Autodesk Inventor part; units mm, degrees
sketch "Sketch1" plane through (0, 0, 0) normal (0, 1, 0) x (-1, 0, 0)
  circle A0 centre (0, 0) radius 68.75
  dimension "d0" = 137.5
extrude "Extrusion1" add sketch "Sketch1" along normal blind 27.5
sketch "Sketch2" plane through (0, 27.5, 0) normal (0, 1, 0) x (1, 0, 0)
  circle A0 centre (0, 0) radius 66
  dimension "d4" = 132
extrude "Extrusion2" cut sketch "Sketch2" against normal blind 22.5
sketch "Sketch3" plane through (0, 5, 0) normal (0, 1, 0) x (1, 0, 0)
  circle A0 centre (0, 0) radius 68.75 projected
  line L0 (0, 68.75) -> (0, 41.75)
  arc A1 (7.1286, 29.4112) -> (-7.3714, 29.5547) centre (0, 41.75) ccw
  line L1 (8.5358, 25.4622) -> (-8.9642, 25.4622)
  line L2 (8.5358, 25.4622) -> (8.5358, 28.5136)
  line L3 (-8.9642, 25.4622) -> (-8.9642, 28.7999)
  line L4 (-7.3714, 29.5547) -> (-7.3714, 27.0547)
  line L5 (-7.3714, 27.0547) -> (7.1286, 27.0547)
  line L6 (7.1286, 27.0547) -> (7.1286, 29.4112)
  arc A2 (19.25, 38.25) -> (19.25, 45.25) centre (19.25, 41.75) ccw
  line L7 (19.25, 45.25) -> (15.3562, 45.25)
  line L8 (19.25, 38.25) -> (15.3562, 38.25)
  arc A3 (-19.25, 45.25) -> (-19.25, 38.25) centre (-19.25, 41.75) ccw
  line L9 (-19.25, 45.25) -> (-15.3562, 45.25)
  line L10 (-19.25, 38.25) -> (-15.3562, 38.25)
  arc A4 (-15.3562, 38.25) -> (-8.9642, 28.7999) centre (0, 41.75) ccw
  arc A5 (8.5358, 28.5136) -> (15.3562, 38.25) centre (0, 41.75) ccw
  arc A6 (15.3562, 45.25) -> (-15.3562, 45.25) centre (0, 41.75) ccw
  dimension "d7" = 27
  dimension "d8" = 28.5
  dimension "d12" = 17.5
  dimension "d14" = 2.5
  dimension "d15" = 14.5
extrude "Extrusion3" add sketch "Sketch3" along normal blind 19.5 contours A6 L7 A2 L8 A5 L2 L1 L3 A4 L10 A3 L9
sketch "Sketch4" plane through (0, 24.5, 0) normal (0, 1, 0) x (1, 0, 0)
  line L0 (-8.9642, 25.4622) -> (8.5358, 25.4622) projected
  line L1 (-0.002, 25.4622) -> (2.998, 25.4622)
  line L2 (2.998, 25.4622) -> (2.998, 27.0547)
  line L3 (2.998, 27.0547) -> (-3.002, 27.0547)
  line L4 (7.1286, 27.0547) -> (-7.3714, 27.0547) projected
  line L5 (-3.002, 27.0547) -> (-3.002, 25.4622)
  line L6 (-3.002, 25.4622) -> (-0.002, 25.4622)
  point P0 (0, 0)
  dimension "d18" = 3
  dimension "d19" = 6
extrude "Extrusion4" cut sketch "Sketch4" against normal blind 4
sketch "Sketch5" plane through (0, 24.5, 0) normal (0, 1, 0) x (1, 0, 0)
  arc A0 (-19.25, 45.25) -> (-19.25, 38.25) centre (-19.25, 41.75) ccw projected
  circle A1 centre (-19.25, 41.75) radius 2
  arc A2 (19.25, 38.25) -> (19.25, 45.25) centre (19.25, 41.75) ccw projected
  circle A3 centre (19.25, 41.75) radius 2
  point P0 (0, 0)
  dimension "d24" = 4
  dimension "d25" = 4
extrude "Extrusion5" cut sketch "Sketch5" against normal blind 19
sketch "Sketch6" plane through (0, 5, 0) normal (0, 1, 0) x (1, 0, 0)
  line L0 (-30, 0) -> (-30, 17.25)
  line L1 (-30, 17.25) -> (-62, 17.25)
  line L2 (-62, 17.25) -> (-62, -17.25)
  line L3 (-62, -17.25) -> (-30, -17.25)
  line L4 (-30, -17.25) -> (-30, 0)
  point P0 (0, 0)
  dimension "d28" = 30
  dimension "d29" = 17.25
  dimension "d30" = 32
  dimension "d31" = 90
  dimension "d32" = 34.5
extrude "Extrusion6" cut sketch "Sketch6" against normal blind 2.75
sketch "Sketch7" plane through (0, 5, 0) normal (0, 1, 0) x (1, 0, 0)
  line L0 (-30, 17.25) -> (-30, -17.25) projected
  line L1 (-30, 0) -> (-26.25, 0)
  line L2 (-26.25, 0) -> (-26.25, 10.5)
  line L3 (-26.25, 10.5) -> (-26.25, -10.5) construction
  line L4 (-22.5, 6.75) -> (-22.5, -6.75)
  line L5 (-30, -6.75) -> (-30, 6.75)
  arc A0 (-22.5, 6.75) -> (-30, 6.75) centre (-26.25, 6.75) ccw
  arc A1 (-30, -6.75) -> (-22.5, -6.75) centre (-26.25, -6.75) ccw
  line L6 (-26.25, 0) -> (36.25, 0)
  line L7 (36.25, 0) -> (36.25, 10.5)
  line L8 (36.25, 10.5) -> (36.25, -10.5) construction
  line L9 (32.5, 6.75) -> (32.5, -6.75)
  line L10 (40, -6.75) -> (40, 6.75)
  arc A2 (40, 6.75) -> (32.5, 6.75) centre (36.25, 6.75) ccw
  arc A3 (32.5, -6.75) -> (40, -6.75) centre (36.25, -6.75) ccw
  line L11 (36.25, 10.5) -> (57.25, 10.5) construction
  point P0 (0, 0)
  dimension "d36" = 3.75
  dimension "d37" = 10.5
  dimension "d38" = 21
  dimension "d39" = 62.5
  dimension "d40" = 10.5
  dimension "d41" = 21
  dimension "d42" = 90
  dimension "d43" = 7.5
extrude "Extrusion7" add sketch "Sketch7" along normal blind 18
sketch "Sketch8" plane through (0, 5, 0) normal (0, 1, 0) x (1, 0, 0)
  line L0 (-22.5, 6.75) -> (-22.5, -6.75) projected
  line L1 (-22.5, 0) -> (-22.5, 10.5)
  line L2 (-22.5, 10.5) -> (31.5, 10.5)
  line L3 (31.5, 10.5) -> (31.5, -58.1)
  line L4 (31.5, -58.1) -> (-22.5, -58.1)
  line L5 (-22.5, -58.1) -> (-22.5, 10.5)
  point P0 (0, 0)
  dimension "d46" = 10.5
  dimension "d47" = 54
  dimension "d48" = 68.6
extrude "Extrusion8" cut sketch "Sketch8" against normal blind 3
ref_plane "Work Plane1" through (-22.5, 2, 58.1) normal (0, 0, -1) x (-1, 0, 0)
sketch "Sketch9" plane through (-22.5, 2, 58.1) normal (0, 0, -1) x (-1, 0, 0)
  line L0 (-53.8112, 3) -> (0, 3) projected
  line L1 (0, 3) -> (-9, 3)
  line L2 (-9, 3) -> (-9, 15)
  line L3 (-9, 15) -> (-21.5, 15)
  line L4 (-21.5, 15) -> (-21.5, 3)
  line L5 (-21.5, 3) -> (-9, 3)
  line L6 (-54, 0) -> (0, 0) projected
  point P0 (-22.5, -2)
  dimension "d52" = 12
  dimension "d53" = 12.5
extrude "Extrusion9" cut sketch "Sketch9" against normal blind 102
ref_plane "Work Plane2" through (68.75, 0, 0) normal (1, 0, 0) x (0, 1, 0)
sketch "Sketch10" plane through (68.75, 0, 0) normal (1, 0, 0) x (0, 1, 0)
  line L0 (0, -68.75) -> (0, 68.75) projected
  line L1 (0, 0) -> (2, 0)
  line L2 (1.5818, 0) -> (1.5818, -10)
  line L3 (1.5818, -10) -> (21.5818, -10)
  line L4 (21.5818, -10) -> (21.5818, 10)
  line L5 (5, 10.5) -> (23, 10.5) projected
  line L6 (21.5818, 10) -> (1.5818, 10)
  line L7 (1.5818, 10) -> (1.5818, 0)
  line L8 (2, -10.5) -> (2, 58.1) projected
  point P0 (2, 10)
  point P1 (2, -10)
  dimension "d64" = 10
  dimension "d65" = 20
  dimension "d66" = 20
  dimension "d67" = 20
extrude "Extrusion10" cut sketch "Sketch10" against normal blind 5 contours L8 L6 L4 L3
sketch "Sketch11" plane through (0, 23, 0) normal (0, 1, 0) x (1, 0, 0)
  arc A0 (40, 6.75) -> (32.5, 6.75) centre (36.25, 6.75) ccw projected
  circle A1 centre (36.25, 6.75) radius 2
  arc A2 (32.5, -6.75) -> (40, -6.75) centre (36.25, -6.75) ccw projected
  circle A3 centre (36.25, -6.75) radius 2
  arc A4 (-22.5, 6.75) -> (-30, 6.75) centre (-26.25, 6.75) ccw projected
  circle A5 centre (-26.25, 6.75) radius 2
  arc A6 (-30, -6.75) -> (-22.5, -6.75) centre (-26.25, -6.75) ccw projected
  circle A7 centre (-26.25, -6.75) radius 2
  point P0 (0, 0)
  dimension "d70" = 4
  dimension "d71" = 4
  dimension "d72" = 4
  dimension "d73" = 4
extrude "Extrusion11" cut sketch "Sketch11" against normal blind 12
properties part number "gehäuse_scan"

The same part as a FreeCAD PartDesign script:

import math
import FreeCAD as App
import Part
import Sketcher


def add_polygon(sketch, points):
    """Adds a closed chain of lines whose ends are joined by coincident constraints."""
    first, n = sketch.GeometryCount, len(points)
    for a, b in zip(points, points[1:] + points[:1]):
        sketch.addGeometry(Part.LineSegment(App.Vector(*a, 0), App.Vector(*b, 0)), False)
    for i in range(n):
        sketch.addConstraint(Sketcher.Constraint("Coincident", first + i, 2, first + (i + 1) % n, 1))

doc = App.newDocument("Part")
params = doc.addObject("Spreadsheet::Sheet", "Params")
for row, (alias, value) in enumerate([
    ("sketch1_diameter", "137.5 mm"),
    ("pad1_length", "27.5 mm"),
    ("sketch2_diameter", "132 mm"),
    ("pocket1_length", "22.5 mm"),
    ("sketch3_radius", "14.25 mm"),
    ("sketch3_width", "17.5 mm"),
    ("sketch3_width2", "14.5 mm"),
    ("sketch3_height", "2.5 mm"),
    ("sketch3_radius2", "3.5 mm"),
    ("pad2_length", "19.5 mm"),
    ("sketch4_width", "6 mm"),
    ("pocket2_length", "4 mm"),
    ("sketch5_diameter", "4 mm"),
    ("pocket3_length", "19 mm"),
    ("sketch6_width", "32 mm"),
    ("sketch6_height", "34.5 mm"),
    ("pocket4_length", "2.75 mm"),
    ("sketch7_radius", "3.75 mm"),
    ("sketch7_height", "13.5 mm"),
    ("pad3_length", "18 mm"),
    ("sketch8_width", "54 mm"),
    ("sketch8_height", "68.6 mm"),
    ("pocket5_length", "3 mm"),
    ("sketch9_height", "12 mm"),
    ("sketch9_width", "12.5 mm"),
    ("pocket6_length", "102 mm"),
    ("sketch10_height", "20 mm"),
    ("pocket7_length", "5 mm"),
    ("sketch11_diameter", "4 mm"),
    ("pocket8_length", "12 mm"),
], start=1):
    params.set(f"A{row}", alias)
    params.set(f"B{row}", "=" + value)
    params.setAlias(f"B{row}", alias)

body = doc.addObject("PartDesign::Body", "Body")

# Sketch on XZ plane
sketch1 = body.newObject("Sketcher::SketchObject", "Sketch")
sketch1.AttachmentSupport = (doc.getObject("XZ_Plane"), [""])
sketch1.MapMode = "FlatFace"
sketch1.addGeometry(Part.Circle(App.Vector(0, 0, 0), App.Vector(0, 0, 1), 69), False)
sketch1.addConstraint(Sketcher.Constraint("Coincident", 0, 3, -1, 1))
sketch1.addConstraint(Sketcher.Constraint("Diameter", 0, 137.5))
sketch1.setExpression("Constraints[1]", "Params.sketch1_diameter")
pad1 = body.newObject("PartDesign::Pad", "Pad")
pad1.Profile = sketch1
pad1.setExpression("Length", "Params.pad1_length")
pad1.Reversed = True

# Sketch on XZ plane
sketch2 = body.newObject("Sketcher::SketchObject", "Sketch001")
sketch2.AttachmentSupport = (doc.getObject("XZ_Plane"), [""])
sketch2.MapMode = "FlatFace"
sketch2.AttachmentOffset = App.Placement(App.Vector(0, 0, -27.5), App.Rotation())
sketch2.addGeometry(Part.Circle(App.Vector(0, 0, 0), App.Vector(0, 0, 1), 66), False)
sketch2.addConstraint(Sketcher.Constraint("Coincident", 0, 3, -1, 1))
sketch2.addConstraint(Sketcher.Constraint("Diameter", 0, 132.0))
sketch2.setExpression("Constraints[1]", "Params.sketch2_diameter")
pocket1 = body.newObject("PartDesign::Pocket", "Pocket")
pocket1.Profile = sketch2
pocket1.setExpression("Length", "Params.pocket1_length")
pocket1.Reversed = True

# Sketch on XZ plane
sketch3 = body.newObject("Sketcher::SketchObject", "Sketch002")
sketch3.AttachmentSupport = (doc.getObject("XZ_Plane"), [""])
sketch3.MapMode = "FlatFace"
sketch3.AttachmentOffset = App.Placement(App.Vector(0, 0, -5), App.Rotation())
sketch3.addGeometry(Part.ArcOfCircle(Part.Circle(App.Vector(0, -41.8, 0), App.Vector(0, 0, 1), 15.8), math.radians(-90), math.radians(-13)), False)
sketch3.addGeometry(Part.ArcOfCircle(Part.Circle(App.Vector(0, -41.8, 0), App.Vector(0, 0, 1), 15.8), math.radians(-167), math.radians(-90)), False)
sketch3.addGeometry(Part.LineSegment(App.Vector(-15.4, -45.2, 0), App.Vector(-19.2, -45.2, 0)), False)
sketch3.addGeometry(Part.ArcOfCircle(Part.Circle(App.Vector(-19.2, -41.8, 0), App.Vector(0, 0, 1), 3.5), math.radians(90), math.radians(270)), False)
sketch3.addGeometry(Part.LineSegment(App.Vector(-19.2, -38.2, 0), App.Vector(-15.4, -38.2, 0)), False)
sketch3.addGeometry(Part.ArcOfCircle(Part.Circle(App.Vector(0, -41.8, 0), App.Vector(0, 0, 1), 15.7), math.radians(125), math.radians(167)), False)
sketch3.addGeometry(Part.LineSegment(App.Vector(-9, -28.8, 0), App.Vector(-9, -25.5, 0)), False)
sketch3.addGeometry(Part.LineSegment(App.Vector(-9, -25.5, 0), App.Vector(8.5, -25.5, 0)), False)
sketch3.addGeometry(Part.LineSegment(App.Vector(8.5, -25.5, 0), App.Vector(8.5, -28.5, 0)), False)
sketch3.addGeometry(Part.ArcOfCircle(Part.Circle(App.Vector(0, -41.8, 0), App.Vector(0, 0, 1), 15.8), math.radians(13), math.radians(57)), False)
sketch3.addGeometry(Part.LineSegment(App.Vector(15.4, -38.2, 0), App.Vector(19.2, -38.2, 0)), False)
sketch3.addGeometry(Part.ArcOfCircle(Part.Circle(App.Vector(19.2, -41.8, 0), App.Vector(0, 0, 1), 3.5), math.radians(-90), math.radians(90)), False)
sketch3.addGeometry(Part.LineSegment(App.Vector(19.2, -45.2, 0), App.Vector(15.4, -45.2, 0)), False)
sketch3.addGeometry(Part.ArcOfCircle(Part.Circle(App.Vector(0, -41.8, 0), App.Vector(0, 0, 1), 14.3), math.radians(121), math.radians(270)), False)
sketch3.addGeometry(Part.ArcOfCircle(Part.Circle(App.Vector(0, -41.8, 0), App.Vector(0, 0, 1), 14.3), math.radians(-90), math.radians(60)), False)
sketch3.addGeometry(Part.LineSegment(App.Vector(7.1, -29.4, 0), App.Vector(7.1, -27.1, 0)), False)
sketch3.addGeometry(Part.LineSegment(App.Vector(7.1, -27.1, 0), App.Vector(-7.4, -27.1, 0)), False)
sketch3.addGeometry(Part.LineSegment(App.Vector(-7.4, -27.1, 0), App.Vector(-7.4, -29.6, 0)), False)
sketch3.addConstraint(Sketcher.Constraint("Tangent", 0, 1, 1, 2))
sketch3.addConstraint(Sketcher.Constraint("Coincident", 1, 1, 2, 1))
sketch3.addConstraint(Sketcher.Constraint("Tangent", 2, 2, 3, 2))
sketch3.addConstraint(Sketcher.Constraint("Tangent", 3, 1, 4, 1))
sketch3.addConstraint(Sketcher.Constraint("Coincident", 4, 2, 5, 2))
sketch3.addConstraint(Sketcher.Constraint("Coincident", 5, 1, 6, 1))
sketch3.addConstraint(Sketcher.Constraint("Coincident", 6, 2, 7, 1))
sketch3.addConstraint(Sketcher.Constraint("Coincident", 7, 2, 8, 1))
sketch3.addConstraint(Sketcher.Constraint("Coincident", 8, 2, 9, 2))
sketch3.addConstraint(Sketcher.Constraint("Coincident", 9, 1, 10, 1))
sketch3.addConstraint(Sketcher.Constraint("Tangent", 10, 2, 11, 2))
sketch3.addConstraint(Sketcher.Constraint("Tangent", 11, 1, 12, 1))
sketch3.addConstraint(Sketcher.Constraint("Coincident", 12, 2, 0, 2))
sketch3.addConstraint(Sketcher.Constraint("Tangent", 13, 2, 14, 1))
sketch3.addConstraint(Sketcher.Constraint("Coincident", 14, 2, 15, 1))
sketch3.addConstraint(Sketcher.Constraint("Coincident", 15, 2, 16, 1))
sketch3.addConstraint(Sketcher.Constraint("Coincident", 16, 2, 17, 1))
sketch3.addConstraint(Sketcher.Constraint("Coincident", 17, 2, 13, 1))
sketch3.addConstraint(Sketcher.Constraint("Horizontal", 2))
sketch3.addConstraint(Sketcher.Constraint("Horizontal", 4))
sketch3.addConstraint(Sketcher.Constraint("Vertical", 6))
sketch3.addConstraint(Sketcher.Constraint("Horizontal", 7))
sketch3.addConstraint(Sketcher.Constraint("Vertical", 8))
sketch3.addConstraint(Sketcher.Constraint("Horizontal", 10))
sketch3.addConstraint(Sketcher.Constraint("Horizontal", 12))
sketch3.addConstraint(Sketcher.Constraint("Vertical", 15))
sketch3.addConstraint(Sketcher.Constraint("Horizontal", 16))
sketch3.addConstraint(Sketcher.Constraint("Vertical", 17))
sketch3.addConstraint(Sketcher.Constraint("Coincident", 5, 3, 0, 3))
sketch3.addConstraint(Sketcher.Constraint("Coincident", 9, 3, 0, 3))
sketch3.addConstraint(Sketcher.Constraint("Coincident", 13, 3, 0, 3))
sketch3.addConstraint(Sketcher.Constraint("Equal", 0, 1))
sketch3.addConstraint(Sketcher.Constraint("Equal", 1, 5))
sketch3.addConstraint(Sketcher.Constraint("Equal", 5, 9))
sketch3.addConstraint(Sketcher.Constraint("Equal", 3, 11))
sketch3.addConstraint(Sketcher.Constraint("Equal", 13, 14))
sketch3.addConstraint(Sketcher.Constraint("Symmetric", 3, 3, 11, 3, -2))
sketch3.addConstraint(Sketcher.Constraint("PointOnObject", 0, 3, -2))
sketch3.addConstraint(Sketcher.Constraint("PointOnObject", 0, 1, -2))
sketch3.addConstraint(Sketcher.Constraint("PointOnObject", 13, 2, -2))
sketch3.addConstraint(Sketcher.Constraint("Horizontal", 1, 3, 3, 3))
sketch3.addConstraint(Sketcher.Constraint("Radius", 13, 14.25))
sketch3.addConstraint(Sketcher.Constraint("DistanceX", 7, 1, 7, 2, 17.5))
sketch3.addConstraint(Sketcher.Constraint("DistanceX", 16, 2, 16, 1, 14.5))
sketch3.addConstraint(Sketcher.Constraint("DistanceY", 17, 2, 17, 1, 2.5))
sketch3.addConstraint(Sketcher.Constraint("Radius", 3, 3.5))
sketch3.addConstraint(Sketcher.Constraint("Radius", 0, 15.75))
sketch3.addConstraint(Sketcher.Constraint("DistanceY", 13, 2, -1, 1, 56.0))
sketch3.addConstraint(Sketcher.Constraint("DistanceY", 5, 1, -1, 1, 28.8))
sketch3.addConstraint(Sketcher.Constraint("DistanceX", 3, 3, 11, 3, 38.5))
sketch3.addConstraint(Sketcher.Constraint("DistanceY", 6, 1, 6, 2, 3.3377))
sketch3.addConstraint(Sketcher.Constraint("DistanceY", 15, 1, 15, 2, 2.3565))
sketch3.setExpression("Constraints[41]", "Params.sketch3_radius")
sketch3.setExpression("Constraints[42]", "Params.sketch3_width")
sketch3.setExpression("Constraints[43]", "Params.sketch3_width2")
sketch3.setExpression("Constraints[44]", "Params.sketch3_height")
sketch3.setExpression("Constraints[45]", "Params.sketch3_radius2")
pad2 = body.newObject("PartDesign::Pad", "Pad001")
pad2.Profile = sketch3
pad2.setExpression("Length", "Params.pad2_length")
pad2.Reversed = True

# Sketch on XZ plane
sketch4 = body.newObject("Sketcher::SketchObject", "Sketch003")
sketch4.AttachmentSupport = (doc.getObject("XZ_Plane"), [""])
sketch4.MapMode = "FlatFace"
sketch4.AttachmentOffset = App.Placement(App.Vector(0, 0, -24.5), App.Rotation())
add_polygon(sketch4, [(-3, -27.1), (-3, -25.5), (3, -25.5), (3, -27.1)])  # lines 0-3
sketch4.addConstraint(Sketcher.Constraint("Vertical", 0))
sketch4.addConstraint(Sketcher.Constraint("Horizontal", 1))
sketch4.addConstraint(Sketcher.Constraint("Vertical", 2))
sketch4.addConstraint(Sketcher.Constraint("Horizontal", 3))
sketch4.addConstraint(Sketcher.Constraint("DistanceX", 1, 1, 1, 2, 6.0))
sketch4.addConstraint(Sketcher.Constraint("DistanceY", 0, 1, 0, 2, 1.5925))
sketch4.addConstraint(Sketcher.Constraint("DistanceX", 0, 2, -1, 1, 3.002))
sketch4.addConstraint(Sketcher.Constraint("DistanceY", 0, 2, -1, 1, 25.4622))
sketch4.setExpression("Constraints[8]", "Params.sketch4_width")
pocket2 = body.newObject("PartDesign::Pocket", "Pocket001")
pocket2.Profile = sketch4
pocket2.setExpression("Length", "Params.pocket2_length")
pocket2.Reversed = True

# Sketch on XZ plane
sketch5 = body.newObject("Sketcher::SketchObject", "Sketch004")
sketch5.AttachmentSupport = (doc.getObject("XZ_Plane"), [""])
sketch5.MapMode = "FlatFace"
sketch5.AttachmentOffset = App.Placement(App.Vector(0, 0, -24.5), App.Rotation())
sketch5.addGeometry(Part.Circle(App.Vector(-19.2, -41.8, 0), App.Vector(0, 0, 1), 2), False)
sketch5.addGeometry(Part.Circle(App.Vector(19.2, -41.8, 0), App.Vector(0, 0, 1), 2), False)
sketch5.addConstraint(Sketcher.Constraint("Equal", 0, 1))
sketch5.addConstraint(Sketcher.Constraint("Symmetric", 0, 3, 1, 3, -2))
sketch5.addConstraint(Sketcher.Constraint("Diameter", 0, 4.0))
sketch5.addConstraint(Sketcher.Constraint("DistanceX", 0, 3, 1, 3, 38.5))
sketch5.addConstraint(Sketcher.Constraint("DistanceY", 0, 3, -1, 1, 41.75))
sketch5.setExpression("Constraints[2]", "Params.sketch5_diameter")
pocket3 = body.newObject("PartDesign::Pocket", "Pocket002")
pocket3.Profile = sketch5
pocket3.setExpression("Length", "Params.pocket3_length")
pocket3.Reversed = True

# Sketch on XZ plane
sketch6 = body.newObject("Sketcher::SketchObject", "Sketch005")
sketch6.AttachmentSupport = (doc.getObject("XZ_Plane"), [""])
sketch6.MapMode = "FlatFace"
sketch6.AttachmentOffset = App.Placement(App.Vector(0, 0, -5), App.Rotation())
add_polygon(sketch6, [(-30, 17), (-30, -17), (-62, -17), (-62, 17)])  # lines 0-3
sketch6.addConstraint(Sketcher.Constraint("Vertical", 0))
sketch6.addConstraint(Sketcher.Constraint("Horizontal", 1))
sketch6.addConstraint(Sketcher.Constraint("Vertical", 2))
sketch6.addConstraint(Sketcher.Constraint("Horizontal", 3))
sketch6.addConstraint(Sketcher.Constraint("DistanceX", 1, 2, 1, 1, 32.0))
sketch6.addConstraint(Sketcher.Constraint("DistanceY", 0, 2, 0, 1, 34.5))
sketch6.addConstraint(Sketcher.Constraint("DistanceX", 0, 2, -1, 1, 30.0))
sketch6.addConstraint(Sketcher.Constraint("DistanceY", 0, 2, -1, 1, 17.25))
sketch6.setExpression("Constraints[8]", "Params.sketch6_width")
sketch6.setExpression("Constraints[9]", "Params.sketch6_height")
pocket4 = body.newObject("PartDesign::Pocket", "Pocket003")
pocket4.Profile = sketch6
pocket4.setExpression("Length", "Params.pocket4_length")
pocket4.Reversed = True

# Sketch on XZ plane
sketch7 = body.newObject("Sketcher::SketchObject", "Sketch006")
sketch7.AttachmentSupport = (doc.getObject("XZ_Plane"), [""])
sketch7.MapMode = "FlatFace"
sketch7.AttachmentOffset = App.Placement(App.Vector(0, 0, -5), App.Rotation())
sketch7.addGeometry(Part.LineSegment(App.Vector(-30, -6.8, 0), App.Vector(-30, 6.8, 0)), False)
sketch7.addGeometry(Part.ArcOfCircle(Part.Circle(App.Vector(-26.2, 6.8, 0), App.Vector(0, 0, 1), 3.8), math.radians(0), math.radians(180)), False)
sketch7.addGeometry(Part.LineSegment(App.Vector(-22.5, 6.8, 0), App.Vector(-22.5, -6.8, 0)), False)
sketch7.addGeometry(Part.ArcOfCircle(Part.Circle(App.Vector(-26.2, -6.8, 0), App.Vector(0, 0, 1), 3.8), math.radians(180), math.radians(360)), False)
sketch7.addGeometry(Part.LineSegment(App.Vector(32.5, -6.8, 0), App.Vector(32.5, 6.8, 0)), False)
sketch7.addGeometry(Part.ArcOfCircle(Part.Circle(App.Vector(36.2, 6.8, 0), App.Vector(0, 0, 1), 3.8), math.radians(0), math.radians(180)), False)
sketch7.addGeometry(Part.LineSegment(App.Vector(40, 6.8, 0), App.Vector(40, -6.8, 0)), False)
sketch7.addGeometry(Part.ArcOfCircle(Part.Circle(App.Vector(36.2, -6.8, 0), App.Vector(0, 0, 1), 3.8), math.radians(180), math.radians(360)), False)
sketch7.addConstraint(Sketcher.Constraint("Tangent", 0, 2, 1, 2))
sketch7.addConstraint(Sketcher.Constraint("Tangent", 1, 1, 2, 1))
sketch7.addConstraint(Sketcher.Constraint("Tangent", 2, 2, 3, 2))
sketch7.addConstraint(Sketcher.Constraint("Tangent", 3, 1, 0, 1))
sketch7.addConstraint(Sketcher.Constraint("Tangent", 4, 2, 5, 2))
sketch7.addConstraint(Sketcher.Constraint("Tangent", 5, 1, 6, 1))
sketch7.addConstraint(Sketcher.Constraint("Tangent", 6, 2, 7, 2))
sketch7.addConstraint(Sketcher.Constraint("Tangent", 7, 1, 4, 1))
sketch7.addConstraint(Sketcher.Constraint("Vertical", 0))
sketch7.addConstraint(Sketcher.Constraint("Vertical", 2))
sketch7.addConstraint(Sketcher.Constraint("Vertical", 4))
sketch7.addConstraint(Sketcher.Constraint("Vertical", 6))
sketch7.addConstraint(Sketcher.Constraint("Equal", 3, 5))
sketch7.addConstraint(Sketcher.Constraint("Horizontal", 1, 3, 5, 3))
sketch7.addConstraint(Sketcher.Constraint("Horizontal", 3, 3, 7, 3))
sketch7.addConstraint(Sketcher.Constraint("Radius", 1, 3.75))
sketch7.addConstraint(Sketcher.Constraint("DistanceX", 1, 3, 5, 3, 62.5))
sketch7.addConstraint(Sketcher.Constraint("DistanceY", 0, 1, 0, 2, 13.5))
sketch7.addConstraint(Sketcher.Constraint("DistanceX", 0, 2, -1, 1, 30.0))
sketch7.addConstraint(Sketcher.Constraint("DistanceY", -1, 1, 1, 3, 6.75))
sketch7.setExpression("Constraints[15]", "Params.sketch7_radius")
sketch7.setExpression("Constraints[17]", "Params.sketch7_height")
pad3 = body.newObject("PartDesign::Pad", "Pad002")
pad3.Profile = sketch7
pad3.setExpression("Length", "Params.pad3_length")
pad3.Reversed = True

# Sketch on XZ plane
sketch8 = body.newObject("Sketcher::SketchObject", "Sketch007")
sketch8.AttachmentSupport = (doc.getObject("XZ_Plane"), [""])
sketch8.MapMode = "FlatFace"
sketch8.AttachmentOffset = App.Placement(App.Vector(0, 0, -5), App.Rotation())
add_polygon(sketch8, [(-22, -10), (-22, 58), (32, 58), (32, -10)])  # lines 0-3
sketch8.addConstraint(Sketcher.Constraint("Vertical", 0))
sketch8.addConstraint(Sketcher.Constraint("Horizontal", 1))
sketch8.addConstraint(Sketcher.Constraint("Vertical", 2))
sketch8.addConstraint(Sketcher.Constraint("Horizontal", 3))
sketch8.addConstraint(Sketcher.Constraint("DistanceX", 1, 1, 1, 2, 54.0))
sketch8.addConstraint(Sketcher.Constraint("DistanceY", 0, 1, 0, 2, 68.6))
sketch8.addConstraint(Sketcher.Constraint("DistanceY", 2, 2, -1, 1, 10.5))
sketch8.addConstraint(Sketcher.Constraint("DistanceX", 0, 2, -1, 1, 22.5))
sketch8.setExpression("Constraints[8]", "Params.sketch8_width")
sketch8.setExpression("Constraints[9]", "Params.sketch8_height")
pocket5 = body.newObject("PartDesign::Pocket", "Pocket004")
pocket5.Profile = sketch8
pocket5.setExpression("Length", "Params.pocket5_length")
pocket5.Reversed = True

# Sketch on XY plane
sketch9 = body.newObject("Sketcher::SketchObject", "Sketch008")
sketch9.AttachmentSupport = (doc.getObject("XY_Plane"), [""])
sketch9.MapMode = "FlatFace"
sketch9.AttachmentOffset = App.Placement(App.Vector(0, 0, 58.1), App.Rotation())
add_polygon(sketch9, [(-1, 17), (-1, 5), (-14, 5), (-14, 17)])  # lines 0-3
sketch9.addConstraint(Sketcher.Constraint("Vertical", 0))
sketch9.addConstraint(Sketcher.Constraint("Horizontal", 1))
sketch9.addConstraint(Sketcher.Constraint("Vertical", 2))
sketch9.addConstraint(Sketcher.Constraint("Horizontal", 3))
sketch9.addConstraint(Sketcher.Constraint("DistanceY", 0, 2, 0, 1, 12.0))
sketch9.addConstraint(Sketcher.Constraint("DistanceX", 1, 2, 1, 1, 12.5))
sketch9.addConstraint(Sketcher.Constraint("DistanceX", 0, 2, -1, 1, 1.0))
sketch9.addConstraint(Sketcher.Constraint("DistanceY", -1, 1, 0, 2, 5.0))
sketch9.setExpression("Constraints[8]", "Params.sketch9_height")
sketch9.setExpression("Constraints[9]", "Params.sketch9_width")
pocket6 = body.newObject("PartDesign::Pocket", "Pocket005")
pocket6.Profile = sketch9
pocket6.setExpression("Length", "Params.pocket6_length")
pocket6.Reversed = True

# Sketch on YZ plane
sketch10 = body.newObject("Sketcher::SketchObject", "Sketch009")
sketch10.AttachmentSupport = (doc.getObject("YZ_Plane"), [""])
sketch10.MapMode = "FlatFace"
sketch10.AttachmentOffset = App.Placement(App.Vector(0, 0, 68.75), App.Rotation())
add_polygon(sketch10, [(2, 10), (2, -10), (22, -10), (22, 10)])  # lines 0-3
sketch10.addConstraint(Sketcher.Constraint("Vertical", 0))
sketch10.addConstraint(Sketcher.Constraint("Horizontal", 1))
sketch10.addConstraint(Sketcher.Constraint("Vertical", 2))
sketch10.addConstraint(Sketcher.Constraint("Horizontal", 3))
sketch10.addConstraint(Sketcher.Constraint("DistanceY", 0, 2, 0, 1, 20.0))
sketch10.addConstraint(Sketcher.Constraint("DistanceY", 0, 2, -1, 1, 10.0))
sketch10.addConstraint(Sketcher.Constraint("DistanceX", -1, 1, 0, 2, 2.0))
sketch10.addConstraint(Sketcher.Constraint("DistanceX", 1, 1, 1, 2, 19.5818))
sketch10.setExpression("Constraints[8]", "Params.sketch10_height")
pocket7 = body.newObject("PartDesign::Pocket", "Pocket006")
pocket7.Profile = sketch10
pocket7.setExpression("Length", "Params.pocket7_length")

# Sketch on XZ plane
sketch11 = body.newObject("Sketcher::SketchObject", "Sketch010")
sketch11.AttachmentSupport = (doc.getObject("XZ_Plane"), [""])
sketch11.MapMode = "FlatFace"
sketch11.AttachmentOffset = App.Placement(App.Vector(0, 0, -23), App.Rotation())
sketch11.addGeometry(Part.Circle(App.Vector(36.2, -6.8, 0), App.Vector(0, 0, 1), 2), False)
sketch11.addGeometry(Part.Circle(App.Vector(36.2, 6.8, 0), App.Vector(0, 0, 1), 2), False)
sketch11.addGeometry(Part.Circle(App.Vector(-26.2, -6.8, 0), App.Vector(0, 0, 1), 2), False)
sketch11.addGeometry(Part.Circle(App.Vector(-26.2, 6.8, 0), App.Vector(0, 0, 1), 2), False)
sketch11.addConstraint(Sketcher.Constraint("Equal", 0, 1))
sketch11.addConstraint(Sketcher.Constraint("Equal", 1, 2))
sketch11.addConstraint(Sketcher.Constraint("Equal", 2, 3))
sketch11.addConstraint(Sketcher.Constraint("Symmetric", 0, 3, 1, 3, -1))
sketch11.addConstraint(Sketcher.Constraint("Symmetric", 2, 3, 3, 3, -1))
sketch11.addConstraint(Sketcher.Constraint("Horizontal", 0, 3, 2, 3))
sketch11.addConstraint(Sketcher.Constraint("Diameter", 0, 4.0))
sketch11.addConstraint(Sketcher.Constraint("DistanceY", 0, 3, 1, 3, 13.5))
sketch11.addConstraint(Sketcher.Constraint("DistanceX", 2, 3, 0, 3, 62.5))
sketch11.addConstraint(Sketcher.Constraint("DistanceX", -1, 1, 0, 3, 36.25))
sketch11.setExpression("Constraints[6]", "Params.sketch11_diameter")
pocket8 = body.newObject("PartDesign::Pocket", "Pocket007")
pocket8.Profile = sketch11
pocket8.setExpression("Length", "Params.pocket8_length")
pocket8.Reversed = True

doc.recompute()
